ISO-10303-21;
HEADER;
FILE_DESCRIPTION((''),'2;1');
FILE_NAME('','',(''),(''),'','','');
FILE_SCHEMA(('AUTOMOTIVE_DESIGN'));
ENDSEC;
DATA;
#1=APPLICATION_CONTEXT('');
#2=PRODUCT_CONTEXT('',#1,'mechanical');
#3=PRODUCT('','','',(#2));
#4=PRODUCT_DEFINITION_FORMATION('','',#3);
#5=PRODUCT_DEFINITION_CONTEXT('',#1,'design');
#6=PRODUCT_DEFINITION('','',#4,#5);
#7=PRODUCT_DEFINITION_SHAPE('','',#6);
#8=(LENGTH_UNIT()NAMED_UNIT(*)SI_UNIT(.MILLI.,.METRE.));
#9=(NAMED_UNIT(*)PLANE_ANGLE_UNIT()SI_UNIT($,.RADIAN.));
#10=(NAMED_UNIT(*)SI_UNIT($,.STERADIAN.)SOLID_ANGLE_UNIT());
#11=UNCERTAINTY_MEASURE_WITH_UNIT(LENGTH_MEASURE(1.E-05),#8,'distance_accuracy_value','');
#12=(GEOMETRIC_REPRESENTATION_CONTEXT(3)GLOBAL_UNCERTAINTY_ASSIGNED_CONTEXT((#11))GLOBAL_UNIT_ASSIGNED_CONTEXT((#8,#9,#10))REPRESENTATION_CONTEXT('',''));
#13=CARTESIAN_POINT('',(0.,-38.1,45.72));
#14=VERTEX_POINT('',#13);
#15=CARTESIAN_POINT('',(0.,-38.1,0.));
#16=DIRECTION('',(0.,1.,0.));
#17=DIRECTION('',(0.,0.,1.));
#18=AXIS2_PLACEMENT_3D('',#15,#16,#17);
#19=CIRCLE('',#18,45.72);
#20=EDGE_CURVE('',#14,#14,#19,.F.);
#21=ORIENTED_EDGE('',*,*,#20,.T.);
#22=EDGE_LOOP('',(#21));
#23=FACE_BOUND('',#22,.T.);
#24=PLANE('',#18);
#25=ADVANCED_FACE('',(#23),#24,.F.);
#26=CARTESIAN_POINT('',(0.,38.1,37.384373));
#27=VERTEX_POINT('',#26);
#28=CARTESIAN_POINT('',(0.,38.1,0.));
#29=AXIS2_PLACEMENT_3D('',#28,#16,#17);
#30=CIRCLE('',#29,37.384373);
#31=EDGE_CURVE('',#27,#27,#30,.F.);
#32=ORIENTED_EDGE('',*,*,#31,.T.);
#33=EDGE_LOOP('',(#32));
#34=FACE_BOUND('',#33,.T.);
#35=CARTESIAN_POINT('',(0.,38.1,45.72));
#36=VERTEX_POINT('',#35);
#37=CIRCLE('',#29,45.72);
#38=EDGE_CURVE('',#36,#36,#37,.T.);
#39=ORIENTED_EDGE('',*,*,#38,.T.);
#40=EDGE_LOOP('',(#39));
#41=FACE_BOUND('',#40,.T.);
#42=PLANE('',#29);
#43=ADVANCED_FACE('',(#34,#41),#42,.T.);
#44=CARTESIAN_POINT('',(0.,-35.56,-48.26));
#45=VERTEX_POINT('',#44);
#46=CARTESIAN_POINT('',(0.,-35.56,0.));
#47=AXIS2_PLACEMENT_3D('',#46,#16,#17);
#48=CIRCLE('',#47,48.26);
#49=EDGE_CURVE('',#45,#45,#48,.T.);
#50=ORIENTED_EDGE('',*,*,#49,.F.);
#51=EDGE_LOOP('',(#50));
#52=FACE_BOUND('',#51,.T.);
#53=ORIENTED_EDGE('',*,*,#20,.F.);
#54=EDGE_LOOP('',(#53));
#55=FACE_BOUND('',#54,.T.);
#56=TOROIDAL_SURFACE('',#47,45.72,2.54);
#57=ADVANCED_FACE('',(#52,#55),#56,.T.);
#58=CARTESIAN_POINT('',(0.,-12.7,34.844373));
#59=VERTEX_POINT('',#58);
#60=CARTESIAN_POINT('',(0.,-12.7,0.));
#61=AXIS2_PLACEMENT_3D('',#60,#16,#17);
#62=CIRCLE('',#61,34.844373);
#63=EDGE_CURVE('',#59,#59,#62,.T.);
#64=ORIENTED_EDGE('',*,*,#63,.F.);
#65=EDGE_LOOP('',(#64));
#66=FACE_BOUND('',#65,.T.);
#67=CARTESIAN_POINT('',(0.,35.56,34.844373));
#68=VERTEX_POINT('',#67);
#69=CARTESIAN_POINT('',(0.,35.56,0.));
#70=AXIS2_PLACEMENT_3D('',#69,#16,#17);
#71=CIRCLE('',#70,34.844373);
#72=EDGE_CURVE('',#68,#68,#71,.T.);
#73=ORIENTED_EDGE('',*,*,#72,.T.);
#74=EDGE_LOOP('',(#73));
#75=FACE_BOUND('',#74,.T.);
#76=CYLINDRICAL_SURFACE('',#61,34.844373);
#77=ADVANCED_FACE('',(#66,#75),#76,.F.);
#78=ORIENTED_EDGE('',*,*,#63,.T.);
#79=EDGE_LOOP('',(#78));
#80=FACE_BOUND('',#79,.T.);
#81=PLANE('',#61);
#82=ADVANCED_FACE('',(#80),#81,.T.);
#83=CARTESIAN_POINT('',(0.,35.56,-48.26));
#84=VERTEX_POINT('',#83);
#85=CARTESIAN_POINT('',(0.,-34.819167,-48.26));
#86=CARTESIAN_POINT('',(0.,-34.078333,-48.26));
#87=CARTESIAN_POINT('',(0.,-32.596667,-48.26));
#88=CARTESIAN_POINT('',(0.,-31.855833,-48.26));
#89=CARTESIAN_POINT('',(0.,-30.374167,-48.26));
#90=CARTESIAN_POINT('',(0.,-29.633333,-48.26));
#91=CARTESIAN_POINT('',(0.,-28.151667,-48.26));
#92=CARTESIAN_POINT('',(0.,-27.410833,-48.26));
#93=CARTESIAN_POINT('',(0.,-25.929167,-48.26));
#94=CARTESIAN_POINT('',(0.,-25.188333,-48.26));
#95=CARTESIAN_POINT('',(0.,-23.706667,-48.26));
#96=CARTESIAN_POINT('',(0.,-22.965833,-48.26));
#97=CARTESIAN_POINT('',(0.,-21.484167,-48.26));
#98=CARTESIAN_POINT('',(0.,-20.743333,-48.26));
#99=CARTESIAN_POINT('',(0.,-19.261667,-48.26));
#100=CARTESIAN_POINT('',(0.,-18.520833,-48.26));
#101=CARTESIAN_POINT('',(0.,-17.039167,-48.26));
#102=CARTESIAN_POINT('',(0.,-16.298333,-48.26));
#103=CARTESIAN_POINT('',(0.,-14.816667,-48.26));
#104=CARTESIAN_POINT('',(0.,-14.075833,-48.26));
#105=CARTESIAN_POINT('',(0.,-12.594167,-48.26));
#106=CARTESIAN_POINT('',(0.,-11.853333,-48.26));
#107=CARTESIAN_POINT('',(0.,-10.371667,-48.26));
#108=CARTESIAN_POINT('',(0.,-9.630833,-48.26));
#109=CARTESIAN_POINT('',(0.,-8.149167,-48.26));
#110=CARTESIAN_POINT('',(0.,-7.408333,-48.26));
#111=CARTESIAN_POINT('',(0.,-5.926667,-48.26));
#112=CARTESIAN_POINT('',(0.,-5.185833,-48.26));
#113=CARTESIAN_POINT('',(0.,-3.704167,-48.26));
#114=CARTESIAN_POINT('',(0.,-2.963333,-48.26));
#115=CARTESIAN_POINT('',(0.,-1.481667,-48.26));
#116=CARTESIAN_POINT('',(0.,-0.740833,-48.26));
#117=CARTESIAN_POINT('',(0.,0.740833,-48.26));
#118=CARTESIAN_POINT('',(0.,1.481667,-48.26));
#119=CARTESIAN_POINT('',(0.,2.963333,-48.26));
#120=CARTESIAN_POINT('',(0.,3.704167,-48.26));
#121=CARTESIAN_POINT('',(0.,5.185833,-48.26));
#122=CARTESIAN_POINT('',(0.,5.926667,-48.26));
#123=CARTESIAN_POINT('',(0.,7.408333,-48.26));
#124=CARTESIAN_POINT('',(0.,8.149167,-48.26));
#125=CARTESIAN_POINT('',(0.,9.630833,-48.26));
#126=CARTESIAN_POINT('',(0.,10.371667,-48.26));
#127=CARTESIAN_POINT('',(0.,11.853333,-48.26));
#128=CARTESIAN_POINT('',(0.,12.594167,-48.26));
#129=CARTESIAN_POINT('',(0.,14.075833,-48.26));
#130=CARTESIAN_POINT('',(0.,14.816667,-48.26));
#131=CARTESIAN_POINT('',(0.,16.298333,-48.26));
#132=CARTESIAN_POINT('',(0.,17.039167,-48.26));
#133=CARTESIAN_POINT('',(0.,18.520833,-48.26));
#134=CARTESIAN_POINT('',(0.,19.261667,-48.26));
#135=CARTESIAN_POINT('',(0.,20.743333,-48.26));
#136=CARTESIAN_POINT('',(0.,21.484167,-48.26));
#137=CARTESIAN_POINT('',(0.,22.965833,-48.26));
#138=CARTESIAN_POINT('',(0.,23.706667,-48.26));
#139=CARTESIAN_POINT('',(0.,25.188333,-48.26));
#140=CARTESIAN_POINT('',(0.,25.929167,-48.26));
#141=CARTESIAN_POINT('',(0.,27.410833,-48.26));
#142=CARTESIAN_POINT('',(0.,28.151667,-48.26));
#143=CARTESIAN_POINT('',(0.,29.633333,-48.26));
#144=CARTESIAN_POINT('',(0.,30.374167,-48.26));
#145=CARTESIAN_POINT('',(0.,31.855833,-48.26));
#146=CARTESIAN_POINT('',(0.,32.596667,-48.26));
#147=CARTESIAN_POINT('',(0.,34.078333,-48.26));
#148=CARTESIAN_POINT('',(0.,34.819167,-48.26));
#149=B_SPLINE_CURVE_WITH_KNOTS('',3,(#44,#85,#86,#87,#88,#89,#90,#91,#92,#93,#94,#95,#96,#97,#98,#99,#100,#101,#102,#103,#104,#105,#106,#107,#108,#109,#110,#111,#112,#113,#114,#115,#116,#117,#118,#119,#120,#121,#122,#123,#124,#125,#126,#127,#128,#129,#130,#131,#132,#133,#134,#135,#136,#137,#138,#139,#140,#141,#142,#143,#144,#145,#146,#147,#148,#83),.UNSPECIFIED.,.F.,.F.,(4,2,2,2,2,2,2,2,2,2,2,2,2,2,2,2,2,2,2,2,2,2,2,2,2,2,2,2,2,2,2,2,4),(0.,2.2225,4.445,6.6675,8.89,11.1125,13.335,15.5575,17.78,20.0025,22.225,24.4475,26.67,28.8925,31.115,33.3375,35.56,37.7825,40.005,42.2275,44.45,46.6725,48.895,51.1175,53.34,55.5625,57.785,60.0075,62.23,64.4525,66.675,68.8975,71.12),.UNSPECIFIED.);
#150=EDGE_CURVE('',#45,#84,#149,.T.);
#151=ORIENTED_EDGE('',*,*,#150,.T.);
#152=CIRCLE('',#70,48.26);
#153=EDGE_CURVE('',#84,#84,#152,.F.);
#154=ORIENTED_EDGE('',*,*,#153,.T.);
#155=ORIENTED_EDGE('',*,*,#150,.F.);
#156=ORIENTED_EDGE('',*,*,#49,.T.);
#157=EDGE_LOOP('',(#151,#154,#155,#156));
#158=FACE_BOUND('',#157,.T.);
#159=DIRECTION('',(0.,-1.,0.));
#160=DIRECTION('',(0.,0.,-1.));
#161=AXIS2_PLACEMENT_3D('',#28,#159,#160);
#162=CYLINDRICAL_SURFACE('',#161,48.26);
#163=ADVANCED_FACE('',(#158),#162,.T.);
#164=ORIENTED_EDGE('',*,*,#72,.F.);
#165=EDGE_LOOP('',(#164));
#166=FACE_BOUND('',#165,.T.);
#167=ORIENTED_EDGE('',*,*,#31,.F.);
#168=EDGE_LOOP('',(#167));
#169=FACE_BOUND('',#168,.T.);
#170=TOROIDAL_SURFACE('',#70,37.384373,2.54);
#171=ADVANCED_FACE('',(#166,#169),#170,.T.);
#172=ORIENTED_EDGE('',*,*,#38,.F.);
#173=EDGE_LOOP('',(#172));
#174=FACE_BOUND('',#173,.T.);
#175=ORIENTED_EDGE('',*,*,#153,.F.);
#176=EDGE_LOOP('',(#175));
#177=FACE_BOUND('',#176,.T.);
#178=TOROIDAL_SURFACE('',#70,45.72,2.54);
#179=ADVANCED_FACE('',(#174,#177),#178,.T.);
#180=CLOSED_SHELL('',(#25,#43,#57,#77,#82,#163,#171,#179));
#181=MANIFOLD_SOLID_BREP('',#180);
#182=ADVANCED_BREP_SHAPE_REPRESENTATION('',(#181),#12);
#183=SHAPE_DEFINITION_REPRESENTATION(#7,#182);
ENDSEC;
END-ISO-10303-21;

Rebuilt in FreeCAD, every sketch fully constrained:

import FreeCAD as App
import Part
import Sketcher
Q = App.Units.Quantity


def edges_at(feature, points):
    """Names of the edges that pass closest to the given points."""
    edges = feature.Shape.Edges
    near = lambda p: min(range(len(edges)), key=lambda i: edges[i].distToShape(Part.Vertex(*p))[0])
    return sorted({f"Edge{near(p) + 1}" for p in points})

doc = App.newDocument("Part")
body = doc.addObject("PartDesign::Body", "Body")

sketch1 = body.newObject("Sketcher::SketchObject", "Sketch")
sketch1.AttachmentSupport = (doc.getObject("XZ_Plane"), [""])
sketch1.MapMode = "FlatFace"
sketch1.addGeometry(Part.Circle(App.Vector(0, 0, 0), App.Vector(0, 0, 1), 48), False)
sketch1.addConstraint([
    Sketcher.Constraint("Coincident", 0, 3, -1, 1),
    Sketcher.Constraint("Diameter", 0, Q("3.8 in")),
])
pad1 = body.newObject("PartDesign::Pad", "Pad")
pad1.Profile = sketch1
pad1.Length = Q("3 in")
pad1.Midplane = True

sketch2 = body.newObject("Sketcher::SketchObject", "Sketch001")
sketch2.AttachmentSupport = (doc.getObject("XZ_Plane"), [""])
sketch2.MapMode = "FlatFace"
sketch2.AttachmentOffset = App.Placement(App.Vector(0, 0, -1.5 * 25.4), App.Rotation())
sketch2.addGeometry(Part.Circle(App.Vector(0, 0, 0), App.Vector(0, 0, 1), 35), False)
sketch2.addConstraint([
    Sketcher.Constraint("Coincident", 0, 3, -1, 1),
    Sketcher.Constraint("Diameter", 0, 69.688745),
])
pocket1 = body.newObject("PartDesign::Pocket", "Pocket")
pocket1.Profile = sketch2
pocket1.Length = Q("2 in")
pocket1.Reversed = True
doc.recompute()

fillet = body.newObject("PartDesign::Fillet", "Fillet")
fillet.Base = (pocket1, edges_at(pocket1, [(0, -38.1, 48.26), (0, 38.1, 48.26), (0, 38.1, -34.844)]))
fillet.Radius = Q("0.1 in")

doc.recompute()
